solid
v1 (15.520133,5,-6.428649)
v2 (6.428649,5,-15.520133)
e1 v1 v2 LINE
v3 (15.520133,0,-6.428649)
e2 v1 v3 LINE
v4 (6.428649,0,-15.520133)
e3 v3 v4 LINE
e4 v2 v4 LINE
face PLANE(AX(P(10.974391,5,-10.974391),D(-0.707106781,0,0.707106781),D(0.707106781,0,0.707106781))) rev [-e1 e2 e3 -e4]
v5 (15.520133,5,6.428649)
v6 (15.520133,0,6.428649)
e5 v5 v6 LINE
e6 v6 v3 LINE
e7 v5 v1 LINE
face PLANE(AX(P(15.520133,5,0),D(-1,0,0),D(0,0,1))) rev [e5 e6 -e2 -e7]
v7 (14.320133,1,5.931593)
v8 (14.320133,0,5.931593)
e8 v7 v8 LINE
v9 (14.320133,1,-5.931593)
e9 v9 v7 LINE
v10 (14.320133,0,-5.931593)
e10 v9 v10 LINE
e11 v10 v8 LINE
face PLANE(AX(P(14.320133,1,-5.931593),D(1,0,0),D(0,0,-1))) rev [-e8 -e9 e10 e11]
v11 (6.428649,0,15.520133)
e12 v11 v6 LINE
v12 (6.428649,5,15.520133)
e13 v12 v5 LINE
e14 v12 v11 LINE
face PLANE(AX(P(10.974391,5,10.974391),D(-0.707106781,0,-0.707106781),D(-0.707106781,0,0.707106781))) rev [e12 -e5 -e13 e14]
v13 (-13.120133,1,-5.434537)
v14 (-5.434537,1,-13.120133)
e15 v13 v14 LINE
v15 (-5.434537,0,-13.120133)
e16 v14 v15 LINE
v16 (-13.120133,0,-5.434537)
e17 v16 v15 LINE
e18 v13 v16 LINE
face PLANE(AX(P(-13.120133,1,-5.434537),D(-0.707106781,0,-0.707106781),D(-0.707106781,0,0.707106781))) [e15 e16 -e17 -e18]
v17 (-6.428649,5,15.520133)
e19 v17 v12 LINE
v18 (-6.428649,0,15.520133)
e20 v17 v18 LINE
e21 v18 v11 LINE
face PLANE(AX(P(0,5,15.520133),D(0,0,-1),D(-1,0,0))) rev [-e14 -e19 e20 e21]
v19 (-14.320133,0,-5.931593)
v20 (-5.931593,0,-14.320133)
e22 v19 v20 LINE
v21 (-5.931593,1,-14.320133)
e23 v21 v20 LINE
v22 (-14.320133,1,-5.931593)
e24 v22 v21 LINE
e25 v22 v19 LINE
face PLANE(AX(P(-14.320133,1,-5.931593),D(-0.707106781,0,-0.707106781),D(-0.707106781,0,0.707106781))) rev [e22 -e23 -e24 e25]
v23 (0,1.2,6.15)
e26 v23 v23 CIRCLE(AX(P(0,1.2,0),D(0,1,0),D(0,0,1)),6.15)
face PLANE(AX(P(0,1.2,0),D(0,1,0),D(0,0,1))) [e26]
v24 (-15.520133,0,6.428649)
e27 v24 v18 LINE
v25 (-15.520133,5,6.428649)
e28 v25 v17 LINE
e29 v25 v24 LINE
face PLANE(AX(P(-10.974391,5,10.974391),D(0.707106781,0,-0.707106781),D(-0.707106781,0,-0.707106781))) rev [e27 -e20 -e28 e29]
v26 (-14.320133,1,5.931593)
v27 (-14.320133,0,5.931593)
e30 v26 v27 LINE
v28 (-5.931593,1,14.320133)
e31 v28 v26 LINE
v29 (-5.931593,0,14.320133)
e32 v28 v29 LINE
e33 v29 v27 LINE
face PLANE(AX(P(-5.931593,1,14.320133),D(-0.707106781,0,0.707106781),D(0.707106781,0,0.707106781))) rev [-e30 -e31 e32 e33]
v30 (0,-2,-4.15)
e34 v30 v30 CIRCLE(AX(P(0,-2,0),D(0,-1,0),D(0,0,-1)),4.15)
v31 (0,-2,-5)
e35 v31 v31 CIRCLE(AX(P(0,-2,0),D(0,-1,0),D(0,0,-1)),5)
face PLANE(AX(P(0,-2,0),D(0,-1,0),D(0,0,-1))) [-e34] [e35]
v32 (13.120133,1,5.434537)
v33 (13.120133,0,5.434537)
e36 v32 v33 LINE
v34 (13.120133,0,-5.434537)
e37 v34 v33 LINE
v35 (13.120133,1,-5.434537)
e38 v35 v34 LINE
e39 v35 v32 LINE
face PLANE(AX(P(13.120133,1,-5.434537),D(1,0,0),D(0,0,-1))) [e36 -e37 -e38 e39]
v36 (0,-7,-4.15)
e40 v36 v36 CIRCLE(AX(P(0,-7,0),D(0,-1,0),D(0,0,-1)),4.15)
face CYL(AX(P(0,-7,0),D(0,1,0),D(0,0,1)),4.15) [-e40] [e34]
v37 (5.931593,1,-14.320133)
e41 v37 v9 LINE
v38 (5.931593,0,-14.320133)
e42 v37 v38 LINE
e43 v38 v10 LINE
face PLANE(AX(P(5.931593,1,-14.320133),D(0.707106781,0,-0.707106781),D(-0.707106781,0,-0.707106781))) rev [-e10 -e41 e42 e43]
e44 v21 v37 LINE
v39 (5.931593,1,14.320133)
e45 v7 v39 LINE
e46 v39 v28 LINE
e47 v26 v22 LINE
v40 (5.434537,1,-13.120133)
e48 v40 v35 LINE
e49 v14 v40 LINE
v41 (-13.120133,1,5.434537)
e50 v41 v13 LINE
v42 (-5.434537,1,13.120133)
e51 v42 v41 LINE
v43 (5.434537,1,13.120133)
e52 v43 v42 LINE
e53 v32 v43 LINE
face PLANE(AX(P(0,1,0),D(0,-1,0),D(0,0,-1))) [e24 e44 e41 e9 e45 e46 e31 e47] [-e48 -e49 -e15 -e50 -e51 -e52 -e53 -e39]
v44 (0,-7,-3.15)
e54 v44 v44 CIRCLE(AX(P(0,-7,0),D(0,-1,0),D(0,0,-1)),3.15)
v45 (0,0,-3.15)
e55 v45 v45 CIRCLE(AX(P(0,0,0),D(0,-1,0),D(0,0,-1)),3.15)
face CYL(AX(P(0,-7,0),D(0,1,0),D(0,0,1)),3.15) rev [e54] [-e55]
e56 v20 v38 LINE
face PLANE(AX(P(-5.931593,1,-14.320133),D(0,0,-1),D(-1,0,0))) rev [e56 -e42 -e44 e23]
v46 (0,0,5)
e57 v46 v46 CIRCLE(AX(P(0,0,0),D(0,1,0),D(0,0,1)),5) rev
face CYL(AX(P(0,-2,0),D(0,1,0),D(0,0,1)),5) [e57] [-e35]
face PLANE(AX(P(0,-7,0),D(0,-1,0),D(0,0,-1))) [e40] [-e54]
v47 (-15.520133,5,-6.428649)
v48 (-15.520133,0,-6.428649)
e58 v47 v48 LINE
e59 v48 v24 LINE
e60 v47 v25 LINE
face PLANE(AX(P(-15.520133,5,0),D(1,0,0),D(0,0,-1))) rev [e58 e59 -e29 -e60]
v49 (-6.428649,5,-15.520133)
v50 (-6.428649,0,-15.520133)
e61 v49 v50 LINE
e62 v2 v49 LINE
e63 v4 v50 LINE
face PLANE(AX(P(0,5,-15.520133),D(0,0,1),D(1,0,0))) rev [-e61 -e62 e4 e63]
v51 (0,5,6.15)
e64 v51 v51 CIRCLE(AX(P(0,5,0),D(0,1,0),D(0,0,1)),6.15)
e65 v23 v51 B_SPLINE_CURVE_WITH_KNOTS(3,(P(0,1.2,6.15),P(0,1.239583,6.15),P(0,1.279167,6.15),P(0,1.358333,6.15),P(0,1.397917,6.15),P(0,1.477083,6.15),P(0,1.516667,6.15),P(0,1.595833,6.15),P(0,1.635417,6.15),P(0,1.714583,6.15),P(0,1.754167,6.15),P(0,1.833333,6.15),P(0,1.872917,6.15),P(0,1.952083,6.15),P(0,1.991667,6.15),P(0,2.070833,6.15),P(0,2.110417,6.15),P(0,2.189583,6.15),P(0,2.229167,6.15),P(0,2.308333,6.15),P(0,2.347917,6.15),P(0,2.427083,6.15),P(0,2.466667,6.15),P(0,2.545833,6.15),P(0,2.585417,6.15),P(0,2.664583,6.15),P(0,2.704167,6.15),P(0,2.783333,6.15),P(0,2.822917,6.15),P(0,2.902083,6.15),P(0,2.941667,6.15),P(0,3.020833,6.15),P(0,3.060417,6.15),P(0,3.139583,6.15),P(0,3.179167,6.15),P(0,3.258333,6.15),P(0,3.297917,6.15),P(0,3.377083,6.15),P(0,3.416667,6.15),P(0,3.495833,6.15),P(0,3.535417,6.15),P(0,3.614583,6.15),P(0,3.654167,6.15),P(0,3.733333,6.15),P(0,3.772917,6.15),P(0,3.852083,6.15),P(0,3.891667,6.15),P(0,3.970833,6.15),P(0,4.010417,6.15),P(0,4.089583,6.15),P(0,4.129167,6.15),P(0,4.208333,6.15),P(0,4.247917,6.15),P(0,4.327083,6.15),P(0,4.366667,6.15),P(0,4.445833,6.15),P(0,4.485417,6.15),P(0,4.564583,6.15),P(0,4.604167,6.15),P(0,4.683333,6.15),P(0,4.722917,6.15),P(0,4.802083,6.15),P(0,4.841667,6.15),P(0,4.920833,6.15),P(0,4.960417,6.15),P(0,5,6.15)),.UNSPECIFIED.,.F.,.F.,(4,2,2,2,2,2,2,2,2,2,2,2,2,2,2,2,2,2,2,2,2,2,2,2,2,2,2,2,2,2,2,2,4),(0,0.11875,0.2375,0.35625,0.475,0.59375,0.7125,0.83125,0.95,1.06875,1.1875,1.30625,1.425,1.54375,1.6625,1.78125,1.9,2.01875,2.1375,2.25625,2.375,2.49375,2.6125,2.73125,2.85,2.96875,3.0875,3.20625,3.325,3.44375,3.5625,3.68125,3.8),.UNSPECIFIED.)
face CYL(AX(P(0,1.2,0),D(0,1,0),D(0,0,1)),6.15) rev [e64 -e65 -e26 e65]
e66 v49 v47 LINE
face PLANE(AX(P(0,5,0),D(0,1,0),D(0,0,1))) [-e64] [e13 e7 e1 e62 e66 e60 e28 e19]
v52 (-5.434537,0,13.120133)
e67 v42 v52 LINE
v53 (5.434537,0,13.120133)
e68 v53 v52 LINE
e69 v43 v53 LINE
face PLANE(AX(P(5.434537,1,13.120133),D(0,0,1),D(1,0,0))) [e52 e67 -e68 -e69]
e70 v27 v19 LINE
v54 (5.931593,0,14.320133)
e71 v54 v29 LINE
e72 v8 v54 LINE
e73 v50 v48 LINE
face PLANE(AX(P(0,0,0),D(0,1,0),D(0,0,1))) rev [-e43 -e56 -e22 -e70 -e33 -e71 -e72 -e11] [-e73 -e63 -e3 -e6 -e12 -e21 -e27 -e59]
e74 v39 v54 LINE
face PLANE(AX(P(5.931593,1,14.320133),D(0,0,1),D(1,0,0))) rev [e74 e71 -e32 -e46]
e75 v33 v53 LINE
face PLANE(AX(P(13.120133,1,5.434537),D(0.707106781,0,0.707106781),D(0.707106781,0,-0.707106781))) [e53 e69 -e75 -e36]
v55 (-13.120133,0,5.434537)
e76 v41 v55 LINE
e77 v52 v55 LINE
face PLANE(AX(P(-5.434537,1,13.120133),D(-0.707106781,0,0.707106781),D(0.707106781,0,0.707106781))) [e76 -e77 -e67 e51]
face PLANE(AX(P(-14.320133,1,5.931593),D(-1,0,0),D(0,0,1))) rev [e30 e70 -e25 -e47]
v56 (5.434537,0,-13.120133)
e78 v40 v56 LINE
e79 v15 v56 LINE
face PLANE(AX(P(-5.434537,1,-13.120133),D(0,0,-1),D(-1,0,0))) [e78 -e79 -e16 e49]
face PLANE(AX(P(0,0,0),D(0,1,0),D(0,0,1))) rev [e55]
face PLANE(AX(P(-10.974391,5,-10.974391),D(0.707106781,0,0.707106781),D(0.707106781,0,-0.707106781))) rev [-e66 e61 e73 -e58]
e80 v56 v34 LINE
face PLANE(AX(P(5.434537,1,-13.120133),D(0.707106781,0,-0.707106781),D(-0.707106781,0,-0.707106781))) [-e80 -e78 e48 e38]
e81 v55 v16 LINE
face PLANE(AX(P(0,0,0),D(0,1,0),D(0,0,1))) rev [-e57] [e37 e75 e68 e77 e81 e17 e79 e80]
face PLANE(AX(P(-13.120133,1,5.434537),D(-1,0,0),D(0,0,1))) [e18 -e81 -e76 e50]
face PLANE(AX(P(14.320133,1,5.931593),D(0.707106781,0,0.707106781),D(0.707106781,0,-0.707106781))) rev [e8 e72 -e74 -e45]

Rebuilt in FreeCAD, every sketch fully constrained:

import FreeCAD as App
import Part
import Sketcher
from FreeCAD import Vector
Q = App.Units.Quantity

doc = App.newDocument("Part")
body = doc.addObject("PartDesign::Body", "Body")

sketch1 = body.newObject("Sketcher::SketchObject", "Sketch")
sketch1.AttachmentSupport = (doc.getObject("XZ_Plane"), [""])
sketch1.MapMode = "FlatFace"
sketch1.addGeometry([
    Part.LineSegment(Vector(16, -6, 0), Vector(6, -16, 0)),
    Part.LineSegment(Vector(6, -16, 0), Vector(-6, -16, 0)),
    Part.LineSegment(Vector(-6, -16, 0), Vector(-16, -6, 0)),
    Part.LineSegment(Vector(-16, -6, 0), Vector(-16, 6, 0)),
    Part.LineSegment(Vector(-16, 6, 0), Vector(-6, 16, 0)),
    Part.LineSegment(Vector(-6, 16, 0), Vector(6, 16, 0)),
    Part.LineSegment(Vector(6, 16, 0), Vector(16, 6, 0)),
    Part.LineSegment(Vector(16, 6, 0), Vector(16, -6, 0)),
], False)
sketch1.addConstraint([
    Sketcher.Constraint("Coincident", 0, 2, 1, 1),
    Sketcher.Constraint("Coincident", 1, 2, 2, 1),
    Sketcher.Constraint("Coincident", 2, 2, 3, 1),
    Sketcher.Constraint("Coincident", 3, 2, 4, 1),
    Sketcher.Constraint("Coincident", 4, 2, 5, 1),
    Sketcher.Constraint("Coincident", 5, 2, 6, 1),
    Sketcher.Constraint("Coincident", 6, 2, 7, 1),
    Sketcher.Constraint("Coincident", 7, 2, 0, 1),
    Sketcher.Constraint("Horizontal", 1),
    Sketcher.Constraint("Vertical", 3),
    Sketcher.Constraint("Horizontal", 5),
    Sketcher.Constraint("Vertical", 7),
    Sketcher.Constraint("Symmetric", 0, 2, 4, 2, -1, 1),
    Sketcher.Constraint("Symmetric", 2, 2, 6, 2, -1, 1),
    Sketcher.Constraint("Perpendicular", 0, 2),
    Sketcher.Constraint("Perpendicular", 2, 4),
    Sketcher.Constraint("Perpendicular", 4, 6),
    Sketcher.Constraint("Horizontal", 3, 2, 6, 2),
    Sketcher.Constraint("Vertical", 1, 2, 4, 2),
    Sketcher.Constraint("Equal", 5, 3),
    Sketcher.Constraint("DistanceX", 1, 2, 1, 1, Q("12.857299 mm")),
    Sketcher.Constraint("Distance", 0, Q("12.857299 mm")),
])
pad1 = body.newObject("PartDesign::Pad", "Pad")
pad1.Profile = sketch1
pad1.Length = 5
pad1.Reversed = True

sketch2 = body.newObject("Sketcher::SketchObject", "Sketch001")
sketch2.AttachmentSupport = (doc.getObject("XZ_Plane"), [""])
sketch2.MapMode = "FlatFace"
sketch2.addGeometry([
    Part.LineSegment(Vector(6, -14, 0), Vector(14, -6, 0)),
    Part.LineSegment(Vector(14, -6, 0), Vector(14, 6, 0)),
    Part.LineSegment(Vector(14, 6, 0), Vector(6, 14, 0)),
    Part.LineSegment(Vector(6, 14, 0), Vector(-6, 14, 0)),
    Part.LineSegment(Vector(-6, 14, 0), Vector(-14, 6, 0)),
    Part.LineSegment(Vector(-14, 6, 0), Vector(-14, -6, 0)),
    Part.LineSegment(Vector(-14, -6, 0), Vector(-6, -14, 0)),
    Part.LineSegment(Vector(-6, -14, 0), Vector(6, -14, 0)),
    Part.LineSegment(Vector(13, -5, 0), Vector(5, -13, 0)),
    Part.LineSegment(Vector(5, -13, 0), Vector(-5, -13, 0)),
    Part.LineSegment(Vector(-5, -13, 0), Vector(-13, -5, 0)),
    Part.LineSegment(Vector(-13, -5, 0), Vector(-13, 5, 0)),
    Part.LineSegment(Vector(-13, 5, 0), Vector(-5, 13, 0)),
    Part.LineSegment(Vector(-5, 13, 0), Vector(5, 13, 0)),
    Part.LineSegment(Vector(5, 13, 0), Vector(13, 5, 0)),
    Part.LineSegment(Vector(13, 5, 0), Vector(13, -5, 0)),
], False)
sketch2.addConstraint([
    Sketcher.Constraint("Coincident", 0, 2, 1, 1),
    Sketcher.Constraint("Coincident", 1, 2, 2, 1),
    Sketcher.Constraint("Coincident", 2, 2, 3, 1),
    Sketcher.Constraint("Coincident", 3, 2, 4, 1),
    Sketcher.Constraint("Coincident", 4, 2, 5, 1),
    Sketcher.Constraint("Coincident", 5, 2, 6, 1),
    Sketcher.Constraint("Coincident", 6, 2, 7, 1),
    Sketcher.Constraint("Coincident", 7, 2, 0, 1),
    Sketcher.Constraint("Coincident", 8, 2, 9, 1),
    Sketcher.Constraint("Coincident", 9, 2, 10, 1),
    Sketcher.Constraint("Coincident", 10, 2, 11, 1),
    Sketcher.Constraint("Coincident", 11, 2, 12, 1),
    Sketcher.Constraint("Coincident", 12, 2, 13, 1),
    Sketcher.Constraint("Coincident", 13, 2, 14, 1),
    Sketcher.Constraint("Coincident", 14, 2, 15, 1),
    Sketcher.Constraint("Coincident", 15, 2, 8, 1),
    Sketcher.Constraint("Vertical", 1),
    Sketcher.Constraint("Horizontal", 3),
    Sketcher.Constraint("Vertical", 5),
    Sketcher.Constraint("Horizontal", 7),
    Sketcher.Constraint("Horizontal", 9),
    Sketcher.Constraint("Vertical", 11),
    Sketcher.Constraint("Horizontal", 13),
    Sketcher.Constraint("Vertical", 15),
    Sketcher.Constraint("Symmetric", 0, 2, 4, 2, -1, 1),
    Sketcher.Constraint("Symmetric", 2, 2, 6, 2, -1, 1),
    Sketcher.Constraint("Symmetric", 8, 2, 12, 2, -1, 1),
    Sketcher.Constraint("Symmetric", 10, 2, 14, 2, -1, 1),
    Sketcher.Constraint("Perpendicular", 0, 2),
    Sketcher.Constraint("Perpendicular", 2, 4),
    Sketcher.Constraint("Perpendicular", 4, 6),
    Sketcher.Constraint("Perpendicular", 6, 8),
    Sketcher.Constraint("Perpendicular", 8, 10),
    Sketcher.Constraint("Perpendicular", 10, 12),
    Sketcher.Constraint("Perpendicular", 12, 14),
    Sketcher.Constraint("Horizontal", 1, 2, 4, 2),
    Sketcher.Constraint("Horizontal", 11, 2, 14, 2),
    Sketcher.Constraint("Vertical", 3, 2, 6, 2),
    Sketcher.Constraint("Equal", 7, 1),
    Sketcher.Constraint("Equal", 13, 11),
    Sketcher.Constraint("DistanceY", 7, 2, 8, 2, Q("1.2 mm")),
    Sketcher.Constraint("DistanceX", 3, 2, 3, 1, Q("11.863186 mm")),
    Sketcher.Constraint("DistanceX", 9, 2, 9, 1, Q("10.869074 mm")),
    Sketcher.Constraint("DistanceX", 2, 2, 1, 2, Q("8.38854 mm")),
])
pocket1 = body.newObject("PartDesign::Pocket", "Pocket")
pocket1.Profile = sketch2
pocket1.Length = 1

sketch3 = body.newObject("Sketcher::SketchObject", "Sketch002")
sketch3.AttachmentSupport = (doc.getObject("XZ_Plane"), [""])
sketch3.MapMode = "FlatFace"
sketch3.AttachmentOffset = App.Placement(Vector(0, 0, -5), App.Rotation())
sketch3.addGeometry(Part.Circle(Vector(0, 0, 0), Vector(0, 0, 1), 6), False)
sketch3.addConstraint([
    Sketcher.Constraint("Coincident", 0, 3, -1, 1),
    Sketcher.Constraint("Diameter", 0, Q("12.3 mm")),
])
pocket2 = body.newObject("PartDesign::Pocket", "Pocket001")
pocket2.Profile = sketch3
pocket2.Length = 3.8
pocket2.Reversed = True

sketch4 = body.newObject("Sketcher::SketchObject", "Sketch003")
sketch4.AttachmentSupport = (doc.getObject("XZ_Plane"), [""])
sketch4.MapMode = "FlatFace"
sketch4.addGeometry([
    Part.Circle(Vector(0, 0, 0), Vector(0, 0, 1), 4.2),
    Part.Circle(Vector(0, 0, 0), Vector(0, 0, 1), 3.1),
], False)
sketch4.addConstraint([
    Sketcher.Constraint("Coincident", 0, 3, -1, 1),
    Sketcher.Constraint("Coincident", 1, 3, -1, 1),
    Sketcher.Constraint("Diameter", 0, Q("8.3 mm")),
    Sketcher.Constraint("Diameter", 1, Q("6.3 mm")),
])
pad2 = body.newObject("PartDesign::Pad", "Pad001")
pad2.Profile = sketch4
pad2.Length = 7

sketch5 = body.newObject("Sketcher::SketchObject", "Sketch004")
sketch5.AttachmentSupport = (doc.getObject("XZ_Plane"), [""])
sketch5.MapMode = "FlatFace"
sketch5.addGeometry([
    Part.Circle(Vector(0, 0, 0), Vector(0, 0, 1), 5),
    Part.Circle(Vector(0, 0, 0), Vector(0, 0, 1), 4.2),
], False)
sketch5.addConstraint([
    Sketcher.Constraint("Coincident", 0, 3, -1, 1),
    Sketcher.Constraint("Coincident", 1, 3, -1, 1),
    Sketcher.Constraint("Diameter", 0, Q("10 mm")),
    Sketcher.Constraint("Diameter", 1, Q("8.3 mm")),
])
pad3 = body.newObject("PartDesign::Pad", "Pad002")
pad3.Profile = sketch5
pad3.Length = 2

doc.recompute()
